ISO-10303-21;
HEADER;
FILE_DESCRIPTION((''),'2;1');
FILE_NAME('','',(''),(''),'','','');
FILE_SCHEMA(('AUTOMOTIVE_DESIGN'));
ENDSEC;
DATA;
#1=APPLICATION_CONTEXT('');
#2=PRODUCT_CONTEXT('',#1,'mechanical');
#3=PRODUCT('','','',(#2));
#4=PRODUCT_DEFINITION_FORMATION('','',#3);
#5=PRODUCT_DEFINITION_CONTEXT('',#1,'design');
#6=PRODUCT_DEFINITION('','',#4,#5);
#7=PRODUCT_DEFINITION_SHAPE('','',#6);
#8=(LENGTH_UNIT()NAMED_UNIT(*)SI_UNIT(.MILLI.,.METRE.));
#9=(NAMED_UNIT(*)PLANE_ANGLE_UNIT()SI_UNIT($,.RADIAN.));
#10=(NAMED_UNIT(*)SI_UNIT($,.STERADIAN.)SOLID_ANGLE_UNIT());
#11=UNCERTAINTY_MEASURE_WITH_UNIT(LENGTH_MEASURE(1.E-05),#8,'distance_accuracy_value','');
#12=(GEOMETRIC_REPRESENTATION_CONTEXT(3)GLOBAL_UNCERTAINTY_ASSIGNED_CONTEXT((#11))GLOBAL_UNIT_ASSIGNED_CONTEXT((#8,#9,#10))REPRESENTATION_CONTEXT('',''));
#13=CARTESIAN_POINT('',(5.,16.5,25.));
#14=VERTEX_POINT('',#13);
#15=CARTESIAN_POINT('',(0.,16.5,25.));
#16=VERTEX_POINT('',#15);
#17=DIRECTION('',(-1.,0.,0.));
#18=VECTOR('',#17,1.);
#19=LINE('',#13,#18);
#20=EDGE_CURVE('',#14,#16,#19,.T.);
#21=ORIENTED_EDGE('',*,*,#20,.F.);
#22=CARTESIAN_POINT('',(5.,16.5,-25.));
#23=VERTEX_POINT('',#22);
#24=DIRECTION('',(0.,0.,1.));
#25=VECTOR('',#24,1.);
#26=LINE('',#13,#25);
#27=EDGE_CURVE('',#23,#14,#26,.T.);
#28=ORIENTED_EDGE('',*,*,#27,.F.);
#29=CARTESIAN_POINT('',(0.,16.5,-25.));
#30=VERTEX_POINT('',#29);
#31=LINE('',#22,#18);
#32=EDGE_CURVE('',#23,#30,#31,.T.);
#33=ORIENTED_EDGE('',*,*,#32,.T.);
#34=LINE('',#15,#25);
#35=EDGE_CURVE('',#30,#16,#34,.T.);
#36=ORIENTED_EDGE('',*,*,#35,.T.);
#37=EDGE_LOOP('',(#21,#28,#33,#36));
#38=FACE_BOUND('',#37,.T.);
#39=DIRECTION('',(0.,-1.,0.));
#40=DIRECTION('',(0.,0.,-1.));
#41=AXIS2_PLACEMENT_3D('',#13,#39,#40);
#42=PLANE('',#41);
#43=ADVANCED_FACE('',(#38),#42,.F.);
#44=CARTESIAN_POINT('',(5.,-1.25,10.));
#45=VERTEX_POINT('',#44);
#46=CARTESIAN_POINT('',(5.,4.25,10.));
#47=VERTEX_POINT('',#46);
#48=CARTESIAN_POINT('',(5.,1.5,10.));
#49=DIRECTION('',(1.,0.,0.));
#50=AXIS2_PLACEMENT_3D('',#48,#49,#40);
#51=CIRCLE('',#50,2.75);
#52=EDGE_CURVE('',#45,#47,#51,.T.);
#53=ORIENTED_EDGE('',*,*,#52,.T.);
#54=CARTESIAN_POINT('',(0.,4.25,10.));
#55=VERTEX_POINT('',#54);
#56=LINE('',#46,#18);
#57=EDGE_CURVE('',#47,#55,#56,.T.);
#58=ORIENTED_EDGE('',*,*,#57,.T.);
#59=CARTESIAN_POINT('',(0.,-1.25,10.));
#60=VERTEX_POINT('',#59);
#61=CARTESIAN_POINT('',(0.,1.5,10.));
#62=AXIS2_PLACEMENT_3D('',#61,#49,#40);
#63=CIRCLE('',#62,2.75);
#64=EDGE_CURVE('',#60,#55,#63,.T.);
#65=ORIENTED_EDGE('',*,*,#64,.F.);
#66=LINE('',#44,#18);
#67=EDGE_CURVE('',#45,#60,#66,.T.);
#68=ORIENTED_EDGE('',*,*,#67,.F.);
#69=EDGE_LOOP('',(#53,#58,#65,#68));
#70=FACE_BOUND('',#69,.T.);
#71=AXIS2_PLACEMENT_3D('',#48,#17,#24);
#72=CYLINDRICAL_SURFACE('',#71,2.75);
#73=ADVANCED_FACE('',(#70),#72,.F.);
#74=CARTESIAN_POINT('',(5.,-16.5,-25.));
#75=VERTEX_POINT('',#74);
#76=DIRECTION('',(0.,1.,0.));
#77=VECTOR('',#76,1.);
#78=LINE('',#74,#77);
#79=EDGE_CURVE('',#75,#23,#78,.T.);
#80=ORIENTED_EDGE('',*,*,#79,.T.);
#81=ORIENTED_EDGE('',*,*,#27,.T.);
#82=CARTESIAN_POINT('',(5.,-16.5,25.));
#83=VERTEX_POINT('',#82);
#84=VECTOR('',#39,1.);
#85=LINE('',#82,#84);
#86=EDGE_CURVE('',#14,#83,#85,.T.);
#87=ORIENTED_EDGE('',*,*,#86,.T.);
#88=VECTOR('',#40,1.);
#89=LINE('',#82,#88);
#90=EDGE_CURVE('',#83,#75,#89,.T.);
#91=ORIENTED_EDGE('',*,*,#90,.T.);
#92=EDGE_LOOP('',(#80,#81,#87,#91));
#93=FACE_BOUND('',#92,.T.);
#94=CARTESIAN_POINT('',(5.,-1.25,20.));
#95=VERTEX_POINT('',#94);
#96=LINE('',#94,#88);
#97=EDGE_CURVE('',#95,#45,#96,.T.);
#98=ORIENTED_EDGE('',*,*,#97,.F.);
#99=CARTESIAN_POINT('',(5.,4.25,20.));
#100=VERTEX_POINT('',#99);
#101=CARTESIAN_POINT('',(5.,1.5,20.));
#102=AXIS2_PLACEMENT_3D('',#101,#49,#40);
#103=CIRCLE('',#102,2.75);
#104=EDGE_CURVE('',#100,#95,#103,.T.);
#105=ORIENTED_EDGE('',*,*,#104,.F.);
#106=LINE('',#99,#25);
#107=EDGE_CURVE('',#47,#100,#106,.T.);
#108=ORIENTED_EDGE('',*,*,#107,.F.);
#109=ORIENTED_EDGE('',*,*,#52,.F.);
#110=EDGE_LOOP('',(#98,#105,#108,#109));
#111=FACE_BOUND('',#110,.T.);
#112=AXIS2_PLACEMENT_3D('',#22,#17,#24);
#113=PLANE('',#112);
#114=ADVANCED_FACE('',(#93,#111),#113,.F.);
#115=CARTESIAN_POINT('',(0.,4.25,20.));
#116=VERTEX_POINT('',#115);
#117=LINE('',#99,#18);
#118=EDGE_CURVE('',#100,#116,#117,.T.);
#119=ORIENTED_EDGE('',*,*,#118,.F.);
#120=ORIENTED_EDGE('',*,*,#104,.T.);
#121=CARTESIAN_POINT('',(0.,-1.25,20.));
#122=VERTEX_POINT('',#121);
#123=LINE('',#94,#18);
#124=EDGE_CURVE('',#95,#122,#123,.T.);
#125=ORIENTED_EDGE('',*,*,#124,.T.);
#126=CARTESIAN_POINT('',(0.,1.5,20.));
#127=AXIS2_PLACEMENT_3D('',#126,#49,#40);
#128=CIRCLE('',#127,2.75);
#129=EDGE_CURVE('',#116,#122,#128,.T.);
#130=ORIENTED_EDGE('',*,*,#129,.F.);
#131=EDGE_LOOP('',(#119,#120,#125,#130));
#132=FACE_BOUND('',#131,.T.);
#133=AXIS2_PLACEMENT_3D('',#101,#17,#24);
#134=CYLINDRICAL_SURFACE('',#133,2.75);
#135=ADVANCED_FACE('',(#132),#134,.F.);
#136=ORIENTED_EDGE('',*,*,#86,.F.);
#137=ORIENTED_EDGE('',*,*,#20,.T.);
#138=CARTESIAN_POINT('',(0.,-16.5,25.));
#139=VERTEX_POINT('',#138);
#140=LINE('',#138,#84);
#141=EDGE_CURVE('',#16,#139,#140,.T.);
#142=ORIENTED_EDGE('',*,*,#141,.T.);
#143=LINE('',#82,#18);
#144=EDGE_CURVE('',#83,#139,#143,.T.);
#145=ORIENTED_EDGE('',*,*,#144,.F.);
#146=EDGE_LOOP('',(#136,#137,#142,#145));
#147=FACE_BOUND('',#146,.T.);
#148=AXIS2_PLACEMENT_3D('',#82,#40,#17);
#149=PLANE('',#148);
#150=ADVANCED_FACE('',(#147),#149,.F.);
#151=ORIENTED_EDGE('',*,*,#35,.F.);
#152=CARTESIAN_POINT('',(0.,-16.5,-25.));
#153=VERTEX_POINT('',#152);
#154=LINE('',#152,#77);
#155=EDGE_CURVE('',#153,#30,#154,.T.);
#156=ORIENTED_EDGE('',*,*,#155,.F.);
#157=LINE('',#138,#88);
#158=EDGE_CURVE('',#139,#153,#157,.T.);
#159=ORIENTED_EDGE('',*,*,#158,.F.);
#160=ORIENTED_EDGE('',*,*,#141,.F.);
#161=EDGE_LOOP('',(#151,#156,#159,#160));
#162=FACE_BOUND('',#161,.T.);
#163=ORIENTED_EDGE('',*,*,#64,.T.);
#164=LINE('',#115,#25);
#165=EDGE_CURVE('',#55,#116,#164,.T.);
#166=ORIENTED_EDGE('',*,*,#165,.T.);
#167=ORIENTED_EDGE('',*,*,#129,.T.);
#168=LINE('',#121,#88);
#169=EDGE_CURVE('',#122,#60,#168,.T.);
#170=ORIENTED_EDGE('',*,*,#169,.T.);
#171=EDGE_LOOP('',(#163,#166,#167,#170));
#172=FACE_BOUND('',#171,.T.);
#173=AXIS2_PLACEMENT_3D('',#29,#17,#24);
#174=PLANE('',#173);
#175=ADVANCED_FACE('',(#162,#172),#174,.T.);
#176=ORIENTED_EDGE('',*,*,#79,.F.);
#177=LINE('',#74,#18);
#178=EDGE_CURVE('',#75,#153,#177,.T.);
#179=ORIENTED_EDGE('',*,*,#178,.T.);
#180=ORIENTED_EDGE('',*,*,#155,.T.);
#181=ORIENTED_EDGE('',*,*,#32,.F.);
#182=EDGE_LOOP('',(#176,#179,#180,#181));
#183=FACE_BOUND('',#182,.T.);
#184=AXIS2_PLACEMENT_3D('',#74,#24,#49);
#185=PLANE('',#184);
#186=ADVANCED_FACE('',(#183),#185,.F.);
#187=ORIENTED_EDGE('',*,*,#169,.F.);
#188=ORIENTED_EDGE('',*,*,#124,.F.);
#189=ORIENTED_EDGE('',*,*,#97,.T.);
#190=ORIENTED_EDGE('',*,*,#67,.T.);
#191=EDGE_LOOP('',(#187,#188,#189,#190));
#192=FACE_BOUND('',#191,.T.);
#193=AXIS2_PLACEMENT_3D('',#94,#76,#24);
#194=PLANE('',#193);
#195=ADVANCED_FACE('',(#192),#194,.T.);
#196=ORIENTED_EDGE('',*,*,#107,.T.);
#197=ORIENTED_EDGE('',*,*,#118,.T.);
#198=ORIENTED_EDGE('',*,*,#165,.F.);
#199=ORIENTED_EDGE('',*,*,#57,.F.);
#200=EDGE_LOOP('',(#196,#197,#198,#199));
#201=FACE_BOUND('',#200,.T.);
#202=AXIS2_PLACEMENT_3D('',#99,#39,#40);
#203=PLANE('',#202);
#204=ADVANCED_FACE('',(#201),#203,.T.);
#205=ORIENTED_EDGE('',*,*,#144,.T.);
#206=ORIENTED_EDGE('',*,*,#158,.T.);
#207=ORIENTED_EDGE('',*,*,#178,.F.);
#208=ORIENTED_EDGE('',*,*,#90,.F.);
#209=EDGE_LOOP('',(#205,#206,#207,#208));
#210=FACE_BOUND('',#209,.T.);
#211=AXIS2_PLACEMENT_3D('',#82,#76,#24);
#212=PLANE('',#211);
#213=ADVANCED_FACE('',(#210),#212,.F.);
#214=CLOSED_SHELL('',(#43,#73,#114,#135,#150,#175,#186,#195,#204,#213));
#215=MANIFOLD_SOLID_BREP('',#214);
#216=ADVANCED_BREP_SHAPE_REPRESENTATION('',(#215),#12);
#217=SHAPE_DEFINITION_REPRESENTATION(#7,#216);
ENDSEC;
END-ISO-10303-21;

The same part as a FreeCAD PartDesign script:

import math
import FreeCAD as App
import Part
import Sketcher

V = App.Vector
Q = App.Units.Quantity

doc = App.newDocument("Part")
body = doc.addObject("PartDesign::Body", "Body")

# Sketch on YZ plane
sketch1 = body.newObject("Sketcher::SketchObject", "Sketch")
sketch1.AttachmentSupport = (doc.getObject("YZ_Plane"), [""])
sketch1.MapMode = "FlatFace"
sketch1.addGeometry(Part.LineSegment(V(16.5, 25, 0), V(-16.5, 25, 0)), False)
sketch1.addGeometry(Part.LineSegment(V(-16.5, 25, 0), V(-16.5, -25, 0)), False)
sketch1.addGeometry(Part.LineSegment(V(-16.5, -25, 0), V(16.5, -25, 0)), False)
sketch1.addGeometry(Part.LineSegment(V(16.5, -25, 0), V(16.5, 25, 0)), False)
sketch1.addGeometry(Part.ArcOfCircle(Part.Circle(V(1.5, 20, 0), V(0, 0, 1), 2.8), math.radians(0), math.radians(180)), False)
sketch1.addGeometry(Part.LineSegment(V(4.2, 20, 0), V(4.2, 10, 0)), False)
sketch1.addGeometry(Part.ArcOfCircle(Part.Circle(V(1.5, 10, 0), V(0, 0, 1), 2.8), math.radians(180), math.radians(360)), False)
sketch1.addGeometry(Part.LineSegment(V(-1.2, 10, 0), V(-1.2, 20, 0)), False)
sketch1.addConstraint(Sketcher.Constraint("Coincident", 0, 2, 1, 1))
sketch1.addConstraint(Sketcher.Constraint("Coincident", 1, 2, 2, 1))
sketch1.addConstraint(Sketcher.Constraint("Coincident", 2, 2, 3, 1))
sketch1.addConstraint(Sketcher.Constraint("Coincident", 3, 2, 0, 1))
sketch1.addConstraint(Sketcher.Constraint("Tangent", 4, 1, 5, 1))
sketch1.addConstraint(Sketcher.Constraint("Tangent", 5, 2, 6, 2))
sketch1.addConstraint(Sketcher.Constraint("Tangent", 6, 1, 7, 1))
sketch1.addConstraint(Sketcher.Constraint("Tangent", 7, 2, 4, 2))
sketch1.addConstraint(Sketcher.Constraint("Horizontal", 0))
sketch1.addConstraint(Sketcher.Constraint("Vertical", 1))
sketch1.addConstraint(Sketcher.Constraint("Horizontal", 2))
sketch1.addConstraint(Sketcher.Constraint("Vertical", 3))
sketch1.addConstraint(Sketcher.Constraint("Vertical", 5))
sketch1.addConstraint(Sketcher.Constraint("Vertical", 7))
sketch1.addConstraint(Sketcher.Constraint("Symmetric", 0, 2, 2, 2, -1, 1))
sketch1.addConstraint(Sketcher.Constraint("DistanceX", 0, 2, 0, 1, Q("33 mm")))
sketch1.addConstraint(Sketcher.Constraint("DistanceY", 1, 2, 1, 1, Q("50 mm")))
sketch1.addConstraint(Sketcher.Constraint("DistanceY", 5, 2, 5, 1, Q("10 mm")))
sketch1.addConstraint(Sketcher.Constraint("Radius", 4, Q("2.75 mm")))
sketch1.addConstraint(Sketcher.Constraint("DistanceY", -1, 1, 4, 3, Q("20 mm")))
sketch1.addConstraint(Sketcher.Constraint("DistanceX", 0, 2, 4, 3, Q("18 mm")))
pad1 = body.newObject("PartDesign::Pad", "Pad")
pad1.Profile = sketch1
pad1.Length = 5

doc.recompute()
